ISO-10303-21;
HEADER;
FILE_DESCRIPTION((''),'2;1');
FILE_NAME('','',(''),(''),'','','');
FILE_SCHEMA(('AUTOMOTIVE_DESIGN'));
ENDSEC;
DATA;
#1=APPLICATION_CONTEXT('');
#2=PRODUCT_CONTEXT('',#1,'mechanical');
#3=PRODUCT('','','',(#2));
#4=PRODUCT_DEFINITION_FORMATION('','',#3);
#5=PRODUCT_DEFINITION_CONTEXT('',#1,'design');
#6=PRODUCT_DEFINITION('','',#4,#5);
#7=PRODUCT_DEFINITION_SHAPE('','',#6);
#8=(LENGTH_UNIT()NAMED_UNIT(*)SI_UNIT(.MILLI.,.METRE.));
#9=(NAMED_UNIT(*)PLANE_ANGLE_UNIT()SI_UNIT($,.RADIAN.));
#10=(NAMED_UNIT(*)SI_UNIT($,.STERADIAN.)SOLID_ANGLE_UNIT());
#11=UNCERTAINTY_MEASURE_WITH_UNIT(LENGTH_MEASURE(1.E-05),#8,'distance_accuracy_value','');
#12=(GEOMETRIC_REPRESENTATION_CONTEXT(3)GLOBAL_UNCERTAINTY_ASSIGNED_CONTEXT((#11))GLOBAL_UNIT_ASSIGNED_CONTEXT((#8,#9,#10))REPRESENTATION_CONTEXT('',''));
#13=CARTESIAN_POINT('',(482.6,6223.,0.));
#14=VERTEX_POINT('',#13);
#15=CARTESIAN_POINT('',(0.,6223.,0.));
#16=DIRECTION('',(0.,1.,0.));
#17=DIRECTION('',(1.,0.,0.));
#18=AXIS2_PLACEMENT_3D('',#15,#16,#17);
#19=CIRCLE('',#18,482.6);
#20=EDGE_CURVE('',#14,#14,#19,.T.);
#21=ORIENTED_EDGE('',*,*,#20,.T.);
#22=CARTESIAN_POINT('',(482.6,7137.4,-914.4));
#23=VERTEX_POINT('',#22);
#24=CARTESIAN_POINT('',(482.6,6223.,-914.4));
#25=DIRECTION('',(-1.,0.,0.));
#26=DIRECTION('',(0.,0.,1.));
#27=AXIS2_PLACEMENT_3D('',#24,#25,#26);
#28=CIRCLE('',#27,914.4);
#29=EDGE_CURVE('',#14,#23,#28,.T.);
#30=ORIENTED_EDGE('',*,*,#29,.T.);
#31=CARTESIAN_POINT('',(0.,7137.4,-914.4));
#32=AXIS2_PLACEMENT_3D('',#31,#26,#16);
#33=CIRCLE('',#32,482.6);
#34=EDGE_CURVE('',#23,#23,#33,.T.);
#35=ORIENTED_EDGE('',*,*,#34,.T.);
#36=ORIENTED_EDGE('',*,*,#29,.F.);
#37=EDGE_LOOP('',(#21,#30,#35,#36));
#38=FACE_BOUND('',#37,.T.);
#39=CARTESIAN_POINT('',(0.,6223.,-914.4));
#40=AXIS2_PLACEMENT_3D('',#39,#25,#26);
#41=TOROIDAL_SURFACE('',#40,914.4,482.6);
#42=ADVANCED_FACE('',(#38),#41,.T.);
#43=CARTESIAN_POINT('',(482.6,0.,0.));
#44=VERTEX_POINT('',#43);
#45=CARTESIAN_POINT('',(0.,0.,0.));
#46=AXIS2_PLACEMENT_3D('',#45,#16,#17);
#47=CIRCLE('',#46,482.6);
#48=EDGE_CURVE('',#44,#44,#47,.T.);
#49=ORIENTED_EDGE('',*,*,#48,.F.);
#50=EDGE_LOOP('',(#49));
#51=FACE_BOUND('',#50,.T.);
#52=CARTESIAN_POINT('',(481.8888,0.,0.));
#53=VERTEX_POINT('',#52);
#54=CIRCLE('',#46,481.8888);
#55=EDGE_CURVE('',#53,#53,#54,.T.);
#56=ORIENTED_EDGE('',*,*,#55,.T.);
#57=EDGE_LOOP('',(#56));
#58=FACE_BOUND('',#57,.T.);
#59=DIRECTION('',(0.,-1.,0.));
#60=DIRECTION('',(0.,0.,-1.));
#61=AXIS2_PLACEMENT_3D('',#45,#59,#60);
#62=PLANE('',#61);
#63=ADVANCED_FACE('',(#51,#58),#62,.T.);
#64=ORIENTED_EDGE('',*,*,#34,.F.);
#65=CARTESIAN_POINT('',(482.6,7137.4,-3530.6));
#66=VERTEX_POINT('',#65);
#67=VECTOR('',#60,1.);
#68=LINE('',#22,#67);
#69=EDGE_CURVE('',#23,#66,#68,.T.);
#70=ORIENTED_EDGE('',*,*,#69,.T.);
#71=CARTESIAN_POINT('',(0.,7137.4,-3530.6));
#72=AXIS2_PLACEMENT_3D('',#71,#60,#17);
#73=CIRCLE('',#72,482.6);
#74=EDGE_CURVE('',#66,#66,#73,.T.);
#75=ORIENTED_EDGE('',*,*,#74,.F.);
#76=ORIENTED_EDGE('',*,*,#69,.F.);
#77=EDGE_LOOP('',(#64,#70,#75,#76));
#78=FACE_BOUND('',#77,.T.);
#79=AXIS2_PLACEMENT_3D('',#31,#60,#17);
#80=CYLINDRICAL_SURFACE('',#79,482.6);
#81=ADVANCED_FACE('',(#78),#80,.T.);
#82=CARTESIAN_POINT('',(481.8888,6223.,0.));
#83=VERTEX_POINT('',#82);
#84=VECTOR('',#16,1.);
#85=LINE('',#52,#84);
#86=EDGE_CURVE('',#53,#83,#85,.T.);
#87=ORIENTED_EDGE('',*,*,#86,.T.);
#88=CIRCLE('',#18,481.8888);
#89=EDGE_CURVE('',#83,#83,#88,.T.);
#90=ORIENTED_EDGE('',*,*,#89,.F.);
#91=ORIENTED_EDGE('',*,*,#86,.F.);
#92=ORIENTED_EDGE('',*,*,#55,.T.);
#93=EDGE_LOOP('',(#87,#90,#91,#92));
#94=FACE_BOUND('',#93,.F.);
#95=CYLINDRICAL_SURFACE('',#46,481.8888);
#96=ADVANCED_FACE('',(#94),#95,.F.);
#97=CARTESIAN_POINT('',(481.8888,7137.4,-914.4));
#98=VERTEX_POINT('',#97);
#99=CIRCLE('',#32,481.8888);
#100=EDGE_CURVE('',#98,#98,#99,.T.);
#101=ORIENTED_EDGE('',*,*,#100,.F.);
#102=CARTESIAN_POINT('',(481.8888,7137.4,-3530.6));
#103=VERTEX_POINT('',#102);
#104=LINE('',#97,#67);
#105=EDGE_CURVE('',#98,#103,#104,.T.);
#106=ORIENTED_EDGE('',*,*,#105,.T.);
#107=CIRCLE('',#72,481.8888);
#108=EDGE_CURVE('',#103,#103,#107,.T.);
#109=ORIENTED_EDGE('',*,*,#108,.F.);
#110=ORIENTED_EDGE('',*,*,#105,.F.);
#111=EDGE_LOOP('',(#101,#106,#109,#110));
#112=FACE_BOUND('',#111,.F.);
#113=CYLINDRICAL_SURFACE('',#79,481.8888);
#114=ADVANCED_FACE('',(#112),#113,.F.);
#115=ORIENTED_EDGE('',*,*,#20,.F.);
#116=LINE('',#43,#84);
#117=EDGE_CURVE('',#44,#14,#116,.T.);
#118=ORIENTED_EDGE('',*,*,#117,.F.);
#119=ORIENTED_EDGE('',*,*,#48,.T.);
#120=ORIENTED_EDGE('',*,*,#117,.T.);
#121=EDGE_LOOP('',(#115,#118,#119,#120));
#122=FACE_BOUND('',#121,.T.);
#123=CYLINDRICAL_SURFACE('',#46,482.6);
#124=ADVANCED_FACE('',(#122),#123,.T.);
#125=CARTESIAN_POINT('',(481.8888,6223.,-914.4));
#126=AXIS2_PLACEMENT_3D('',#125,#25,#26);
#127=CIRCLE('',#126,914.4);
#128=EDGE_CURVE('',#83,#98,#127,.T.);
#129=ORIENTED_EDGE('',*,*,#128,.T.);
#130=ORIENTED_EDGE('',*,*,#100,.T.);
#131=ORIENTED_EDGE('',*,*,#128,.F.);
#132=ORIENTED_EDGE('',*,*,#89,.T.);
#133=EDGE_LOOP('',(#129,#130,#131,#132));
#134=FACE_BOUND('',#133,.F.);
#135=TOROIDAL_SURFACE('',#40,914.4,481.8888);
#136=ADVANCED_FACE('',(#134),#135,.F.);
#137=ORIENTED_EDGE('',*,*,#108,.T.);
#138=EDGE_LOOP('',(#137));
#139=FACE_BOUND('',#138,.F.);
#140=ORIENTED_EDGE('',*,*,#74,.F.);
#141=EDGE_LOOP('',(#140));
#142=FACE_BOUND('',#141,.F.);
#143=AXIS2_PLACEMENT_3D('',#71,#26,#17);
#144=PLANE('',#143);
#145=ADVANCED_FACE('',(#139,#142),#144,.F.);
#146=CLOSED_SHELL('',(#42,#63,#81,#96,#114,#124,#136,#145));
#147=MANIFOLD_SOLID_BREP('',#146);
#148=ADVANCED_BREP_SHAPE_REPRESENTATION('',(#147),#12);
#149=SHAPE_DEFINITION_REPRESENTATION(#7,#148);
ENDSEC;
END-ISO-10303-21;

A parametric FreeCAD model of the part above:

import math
import FreeCAD as App
import Part
import Sketcher
from FreeCAD import Vector
Q = App.Units.Quantity

doc = App.newDocument("Part")
body = doc.addObject("PartDesign::Body", "Body")

sketch1 = body.newObject("Sketcher::SketchObject", "Sketch")
sketch1.AttachmentSupport = (doc.getObject("XZ_Plane"), [""])
sketch1.MapMode = "FlatFace"
sketch1.addGeometry(Part.Circle(Vector(0, 0, 0), Vector(0, 0, 1), 483), False)
sketch1.addGeometry(Part.Circle(Vector(0, 0, 0), Vector(0, 0, 1), 482), False)
sketch1.addConstraint(Sketcher.Constraint("Coincident", 0, 3, -1, 1))
sketch1.addConstraint(Sketcher.Constraint("Coincident", 1, 3, -1, 1))
sketch1.addConstraint(Sketcher.Constraint("Diameter", 0, Q("38 in")))
sketch1.addConstraint(Sketcher.Constraint("Diameter", 1, Q("37.944 in")))

sketch2 = body.newObject("Sketcher::SketchObject", "Sketch001")
sketch2.AttachmentSupport = (doc.getObject("YZ_Plane"), [""])
sketch2.MapMode = "FlatFace"
sketch2.addGeometry(Part.LineSegment(Vector(0, 0, 0), Vector(6223, 0, 0)), False)
sketch2.addGeometry(Part.ArcOfCircle(Part.Circle(Vector(6223, -914, 0), Vector(0, 0, 1), 914), math.radians(0), math.radians(90)), False)
sketch2.addGeometry(Part.LineSegment(Vector(7137, -914, 0), Vector(7137, -3531, 0)), False)
sketch2.addConstraint(Sketcher.Constraint("Coincident", 0, 2, 1, 2))
sketch2.addConstraint(Sketcher.Constraint("Coincident", 1, 1, 2, 1))
sketch2.addConstraint(Sketcher.Constraint("Horizontal", 0))
sketch2.addConstraint(Sketcher.Constraint("Vertical", 2))
sketch2.addConstraint(Sketcher.Constraint("Coincident", 0, 1, -1, 1))
sketch2.addConstraint(Sketcher.Constraint("Vertical", 1, 3, 0, 2))
sketch2.addConstraint(Sketcher.Constraint("Radius", 1, Q("36 in")))
sketch2.addConstraint(Sketcher.Constraint("DistanceX", 0, 1, 0, 2, Q("245 in")))
sketch2.addConstraint(Sketcher.Constraint("DistanceY", 2, 2, 2, 1, Q("103 in")))
sketch2.addConstraint(Sketcher.Constraint("DistanceY", 2, 2, -1, 1, Q("139 in")))
doc.recompute()

additivepipe = body.newObject("PartDesign::AdditivePipe", "AdditivePipe")
additivepipe.Profile = sketch1
additivepipe.Spine = (sketch2, ["Edge1", "Edge2", "Edge3"])

doc.recompute()
